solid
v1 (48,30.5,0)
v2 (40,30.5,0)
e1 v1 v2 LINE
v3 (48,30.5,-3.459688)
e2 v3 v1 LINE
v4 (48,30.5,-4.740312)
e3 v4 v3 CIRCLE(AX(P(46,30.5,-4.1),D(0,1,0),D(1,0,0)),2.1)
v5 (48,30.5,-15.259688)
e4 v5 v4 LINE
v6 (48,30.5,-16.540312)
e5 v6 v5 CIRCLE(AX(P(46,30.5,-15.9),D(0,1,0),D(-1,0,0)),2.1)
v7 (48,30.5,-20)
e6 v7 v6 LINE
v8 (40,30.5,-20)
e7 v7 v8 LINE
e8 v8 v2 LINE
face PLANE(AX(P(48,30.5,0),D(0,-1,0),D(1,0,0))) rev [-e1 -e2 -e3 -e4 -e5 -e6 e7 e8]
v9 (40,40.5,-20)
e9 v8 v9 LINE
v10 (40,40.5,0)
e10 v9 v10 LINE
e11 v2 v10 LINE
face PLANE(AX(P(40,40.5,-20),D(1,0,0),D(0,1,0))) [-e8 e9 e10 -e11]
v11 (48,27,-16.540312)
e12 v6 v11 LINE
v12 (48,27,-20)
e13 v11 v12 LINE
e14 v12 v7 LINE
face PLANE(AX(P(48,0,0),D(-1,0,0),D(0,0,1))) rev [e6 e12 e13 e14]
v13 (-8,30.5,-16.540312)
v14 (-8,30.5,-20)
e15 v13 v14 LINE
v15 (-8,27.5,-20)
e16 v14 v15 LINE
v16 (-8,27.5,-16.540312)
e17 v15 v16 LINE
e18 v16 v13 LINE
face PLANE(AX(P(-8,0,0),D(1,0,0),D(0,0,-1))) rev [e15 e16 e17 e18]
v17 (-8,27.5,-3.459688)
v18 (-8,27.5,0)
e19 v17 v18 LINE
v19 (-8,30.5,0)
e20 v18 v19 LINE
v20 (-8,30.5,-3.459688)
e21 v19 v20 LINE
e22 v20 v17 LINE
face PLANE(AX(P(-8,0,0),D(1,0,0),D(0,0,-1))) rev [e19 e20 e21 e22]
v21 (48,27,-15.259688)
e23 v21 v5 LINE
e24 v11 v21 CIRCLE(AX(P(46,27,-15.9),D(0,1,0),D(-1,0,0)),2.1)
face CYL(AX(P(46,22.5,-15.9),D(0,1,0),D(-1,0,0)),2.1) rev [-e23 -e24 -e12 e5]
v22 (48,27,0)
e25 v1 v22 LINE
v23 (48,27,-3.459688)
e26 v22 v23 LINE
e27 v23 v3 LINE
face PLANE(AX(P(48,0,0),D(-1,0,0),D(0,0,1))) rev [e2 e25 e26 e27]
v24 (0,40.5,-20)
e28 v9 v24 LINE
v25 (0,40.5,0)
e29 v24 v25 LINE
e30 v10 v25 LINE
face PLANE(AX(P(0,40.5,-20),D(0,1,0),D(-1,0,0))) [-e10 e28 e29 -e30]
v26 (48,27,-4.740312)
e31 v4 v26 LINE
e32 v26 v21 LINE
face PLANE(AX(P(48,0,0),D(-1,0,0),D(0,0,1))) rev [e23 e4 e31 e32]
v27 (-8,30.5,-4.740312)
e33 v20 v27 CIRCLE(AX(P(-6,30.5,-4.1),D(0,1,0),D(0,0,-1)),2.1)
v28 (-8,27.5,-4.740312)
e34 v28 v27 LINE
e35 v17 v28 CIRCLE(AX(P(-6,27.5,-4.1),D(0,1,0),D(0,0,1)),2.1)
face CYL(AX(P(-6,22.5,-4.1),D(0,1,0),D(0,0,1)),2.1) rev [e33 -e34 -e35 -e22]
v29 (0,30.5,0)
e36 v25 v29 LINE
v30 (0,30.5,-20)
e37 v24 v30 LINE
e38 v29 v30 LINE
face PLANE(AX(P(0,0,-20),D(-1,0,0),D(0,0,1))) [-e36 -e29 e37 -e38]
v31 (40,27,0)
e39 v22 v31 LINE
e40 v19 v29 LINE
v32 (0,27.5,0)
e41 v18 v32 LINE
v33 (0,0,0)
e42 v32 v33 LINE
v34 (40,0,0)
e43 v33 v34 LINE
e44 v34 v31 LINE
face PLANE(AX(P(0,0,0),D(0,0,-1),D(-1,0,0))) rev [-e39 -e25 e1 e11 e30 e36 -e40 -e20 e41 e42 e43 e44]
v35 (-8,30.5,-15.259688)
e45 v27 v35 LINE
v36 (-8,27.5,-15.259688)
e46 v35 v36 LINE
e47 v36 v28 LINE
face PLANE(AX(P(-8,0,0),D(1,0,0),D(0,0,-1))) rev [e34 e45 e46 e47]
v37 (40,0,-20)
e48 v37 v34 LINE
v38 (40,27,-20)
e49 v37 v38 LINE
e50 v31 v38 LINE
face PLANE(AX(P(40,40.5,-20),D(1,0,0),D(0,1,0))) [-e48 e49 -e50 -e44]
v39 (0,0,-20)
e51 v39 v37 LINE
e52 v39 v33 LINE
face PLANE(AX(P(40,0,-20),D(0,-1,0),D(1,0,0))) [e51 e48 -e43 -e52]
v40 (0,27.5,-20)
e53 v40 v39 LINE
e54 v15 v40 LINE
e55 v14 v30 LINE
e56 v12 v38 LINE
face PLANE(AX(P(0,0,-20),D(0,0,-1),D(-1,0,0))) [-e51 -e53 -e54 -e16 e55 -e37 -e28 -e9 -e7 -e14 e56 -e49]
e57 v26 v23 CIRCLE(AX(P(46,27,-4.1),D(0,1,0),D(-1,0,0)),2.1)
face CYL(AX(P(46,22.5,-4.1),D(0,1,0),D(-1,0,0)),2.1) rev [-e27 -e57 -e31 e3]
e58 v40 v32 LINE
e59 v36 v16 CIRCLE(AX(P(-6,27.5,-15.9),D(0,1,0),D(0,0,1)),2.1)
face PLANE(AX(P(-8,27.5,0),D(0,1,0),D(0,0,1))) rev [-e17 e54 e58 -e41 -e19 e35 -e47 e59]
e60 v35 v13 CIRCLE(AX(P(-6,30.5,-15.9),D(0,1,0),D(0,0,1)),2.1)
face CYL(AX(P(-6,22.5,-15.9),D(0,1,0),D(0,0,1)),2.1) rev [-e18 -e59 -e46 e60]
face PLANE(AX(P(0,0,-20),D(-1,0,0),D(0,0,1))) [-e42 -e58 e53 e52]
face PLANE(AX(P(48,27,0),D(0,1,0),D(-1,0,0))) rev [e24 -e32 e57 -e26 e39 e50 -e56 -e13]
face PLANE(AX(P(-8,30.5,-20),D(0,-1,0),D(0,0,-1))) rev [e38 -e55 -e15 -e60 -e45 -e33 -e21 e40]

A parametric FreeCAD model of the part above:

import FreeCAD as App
import Part
import Sketcher
Q = App.Units.Quantity

doc = App.newDocument("Part")
body = doc.addObject("PartDesign::Body", "Body")

# Sketch on XY plane
sketch1 = doc.addObject("Sketcher::SketchObject", "Sketch")
body.addObject(sketch1)
sketch1.AttachmentSupport = (doc.XY_Plane, [""])
sketch1.MapMode = "FlatFace"
sketch1.addGeometry([
    Part.LineSegment(App.Vector(0, 40, 0), App.Vector(0, 0, 0)),
    Part.LineSegment(App.Vector(0, 0, 0), App.Vector(40, 0, 0)),
    Part.LineSegment(App.Vector(40, 0, 0), App.Vector(40, 40, 0)),
    Part.LineSegment(App.Vector(40, 40, 0), App.Vector(0, 40, 0)),
], False)
sketch1.addConstraint([
    Sketcher.Constraint("Coincident", 0, 2, 1, 1),
    Sketcher.Constraint("Coincident", 1, 2, 2, 1),
    Sketcher.Constraint("Coincident", 2, 2, 3, 1),
    Sketcher.Constraint("Coincident", 3, 2, 0, 1),
    Sketcher.Constraint("Vertical", 0),
    Sketcher.Constraint("Horizontal", 1),
    Sketcher.Constraint("Vertical", 2),
    Sketcher.Constraint("Horizontal", 3),
    Sketcher.Constraint("Coincident", 0, 2, -1, 1),
    Sketcher.Constraint("DistanceX", 1, 1, 1, 2, Q("40 mm")),
    Sketcher.Constraint("DistanceY", 0, 2, 0, 1, Q("40.5 mm")),
])
pad1 = doc.addObject("PartDesign::Pad", "Pad")
body.addObject(pad1)
pad1.Profile = sketch1
pad1.Length = 20
pad1.Reversed = True

# Sketch on YZ plane
sketch2 = doc.addObject("Sketcher::SketchObject", "Sketch001")
body.addObject(sketch2)
sketch2.AttachmentSupport = (doc.YZ_Plane, [""])
sketch2.MapMode = "FlatFace"
sketch2.AttachmentOffset = App.Placement(App.Vector(0, 0, 40), App.Rotation())
sketch2.addGeometry([
    Part.LineSegment(App.Vector(30.5, 0, 0), App.Vector(27, 0, 0)),
    Part.LineSegment(App.Vector(27, 0, 0), App.Vector(27, -20, 0)),
    Part.LineSegment(App.Vector(27, -20, 0), App.Vector(30.5, -20, 0)),
    Part.LineSegment(App.Vector(30.5, -20, 0), App.Vector(30.5, 0, 0)),
], False)
sketch2.addConstraint([
    Sketcher.Constraint("Coincident", 0, 2, 1, 1),
    Sketcher.Constraint("Coincident", 1, 2, 2, 1),
    Sketcher.Constraint("Coincident", 2, 2, 3, 1),
    Sketcher.Constraint("Coincident", 3, 2, 0, 1),
    Sketcher.Constraint("Horizontal", 0),
    Sketcher.Constraint("Vertical", 1),
    Sketcher.Constraint("Horizontal", 2),
    Sketcher.Constraint("Vertical", 3),
    Sketcher.Constraint("PointOnObject", 0, 2, -1),
    Sketcher.Constraint("DistanceY", 1, 2, 1, 1, Q("20 mm")),
    Sketcher.Constraint("DistanceX", 0, 2, 0, 1, Q("3.5 mm")),
    Sketcher.Constraint("DistanceX", -1, 1, 0, 2, Q("27 mm")),
])
pad2 = doc.addObject("PartDesign::Pad", "Pad001")
body.addObject(pad2)
pad2.Profile = sketch2
pad2.Length = 8

# Sketch on XZ plane
sketch3 = doc.addObject("Sketcher::SketchObject", "Sketch002")
body.addObject(sketch3)
sketch3.AttachmentSupport = (doc.XZ_Plane, [""])
sketch3.MapMode = "FlatFace"
sketch3.AttachmentOffset = App.Placement(App.Vector(0, 0, -30.5), App.Rotation())
sketch3.addGeometry([
    Part.Circle(App.Vector(46, -15.9, 0), App.Vector(0, 0, 1), 2.1),
    Part.Circle(App.Vector(46, -4.1, 0), App.Vector(0, 0, 1), 2.1),
], False)
sketch3.addConstraint([
    Sketcher.Constraint("Equal", 0, 1),
    Sketcher.Constraint("Vertical", 0, 3, 1, 3),
    Sketcher.Constraint("Diameter", 0, Q("4.2 mm")),
    Sketcher.Constraint("DistanceX", -1, 1, 0, 3, Q("46 mm")),
    Sketcher.Constraint("DistanceY", 0, 3, -1, 1, Q("15.9 mm")),
    Sketcher.Constraint("DistanceY", 1, 3, -1, 1, Q("4.1 mm")),
])
pocket1 = doc.addObject("PartDesign::Pocket", "Pocket")
body.addObject(pocket1)
pocket1.Profile = sketch3
pocket1.Length = 8
pocket1.Reversed = True

# Sketch on YZ plane
sketch4 = doc.addObject("Sketcher::SketchObject", "Sketch003")
body.addObject(sketch4)
sketch4.AttachmentSupport = (doc.YZ_Plane, [""])
sketch4.MapMode = "FlatFace"
sketch4.addGeometry([
    Part.LineSegment(App.Vector(30.5, -20, 0), App.Vector(27.5, -20, 0)),
    Part.LineSegment(App.Vector(27.5, -20, 0), App.Vector(27.5, 0, 0)),
    Part.LineSegment(App.Vector(27.5, 0, 0), App.Vector(30.5, 0, 0)),
    Part.LineSegment(App.Vector(30.5, 0, 0), App.Vector(30.5, -20, 0)),
], False)
sketch4.addConstraint([
    Sketcher.Constraint("Coincident", 0, 2, 1, 1),
    Sketcher.Constraint("Coincident", 1, 2, 2, 1),
    Sketcher.Constraint("Coincident", 2, 2, 3, 1),
    Sketcher.Constraint("Coincident", 3, 2, 0, 1),
    Sketcher.Constraint("Horizontal", 0),
    Sketcher.Constraint("Vertical", 1),
    Sketcher.Constraint("Horizontal", 2),
    Sketcher.Constraint("Vertical", 3),
    Sketcher.Constraint("PointOnObject", 1, 2, -1),
    Sketcher.Constraint("DistanceX", 0, 2, 0, 1, Q("3 mm")),
    Sketcher.Constraint("DistanceY", 1, 1, 1, 2, Q("20 mm")),
    Sketcher.Constraint("DistanceX", -1, 1, 0, 2, Q("27.5 mm")),
])
pad3 = doc.addObject("PartDesign::Pad", "Pad002")
body.addObject(pad3)
pad3.Profile = sketch4
pad3.Length = 8
pad3.Reversed = True

# Sketch on XZ plane
sketch5 = doc.addObject("Sketcher::SketchObject", "Sketch004")
body.addObject(sketch5)
sketch5.AttachmentSupport = (doc.XZ_Plane, [""])
sketch5.MapMode = "FlatFace"
sketch5.AttachmentOffset = App.Placement(App.Vector(0, 0, -30.5), App.Rotation())
sketch5.addGeometry([
    Part.Circle(App.Vector(-6, -15.9, 0), App.Vector(0, 0, 1), 2.1),
    Part.Circle(App.Vector(-6, -4.1, 0), App.Vector(0, 0, 1), 2.1),
], False)
sketch5.addConstraint([
    Sketcher.Constraint("Equal", 0, 1),
    Sketcher.Constraint("Vertical", 0, 3, 1, 3),
    Sketcher.Constraint("Diameter", 0, Q("4.2 mm")),
    Sketcher.Constraint("DistanceX", 0, 3, -1, 1, Q("6 mm")),
    Sketcher.Constraint("DistanceY", 0, 3, -1, 1, Q("15.9 mm")),
    Sketcher.Constraint("DistanceY", 1, 3, -1, 1, Q("4.1 mm")),
])
pocket2 = doc.addObject("PartDesign::Pocket", "Pocket001")
body.addObject(pocket2)
pocket2.Profile = sketch5
pocket2.Length = 8
pocket2.Reversed = True

doc.recompute()
